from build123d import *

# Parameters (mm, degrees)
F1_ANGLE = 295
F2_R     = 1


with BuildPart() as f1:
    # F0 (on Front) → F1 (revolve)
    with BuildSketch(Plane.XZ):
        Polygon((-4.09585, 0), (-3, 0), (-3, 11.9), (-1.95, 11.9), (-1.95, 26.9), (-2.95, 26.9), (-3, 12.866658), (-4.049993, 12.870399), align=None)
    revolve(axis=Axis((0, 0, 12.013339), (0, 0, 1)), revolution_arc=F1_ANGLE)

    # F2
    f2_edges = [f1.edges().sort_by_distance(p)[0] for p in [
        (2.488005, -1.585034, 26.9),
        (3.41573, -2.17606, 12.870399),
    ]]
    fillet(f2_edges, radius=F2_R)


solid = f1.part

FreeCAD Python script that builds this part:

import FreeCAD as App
import Part
import Sketcher


def edges_at(feature, points):
    """Names of the edges that pass closest to the given points."""
    edges = feature.Shape.Edges
    near = lambda p: min(range(len(edges)), key=lambda i: edges[i].distToShape(Part.Vertex(*p))[0])
    return sorted({f"Edge{near(p) + 1}" for p in points})

doc = App.newDocument("Part")
body = doc.addObject("PartDesign::Body", "Body")

# Sketch on XZ plane
sketch1 = doc.addObject("Sketcher::SketchObject", "Sketch")
body.addObject(sketch1)
sketch1.AttachmentSupport = (doc.XZ_Plane, [""])
sketch1.MapMode = "FlatFace"
sketch1.addGeometry(Part.LineSegment(App.Vector(-4.09585, 0, 0), App.Vector(-3, 0, 0)), False)
sketch1.addGeometry(Part.LineSegment(App.Vector(-3, 0, 0), App.Vector(-3, 11.9, 0)), False)
sketch1.addGeometry(Part.LineSegment(App.Vector(-3, 11.9, 0), App.Vector(-1.95, 11.9, 0)), False)
sketch1.addGeometry(Part.LineSegment(App.Vector(-1.95, 11.9, 0), App.Vector(-1.95, 26.9, 0)), False)
sketch1.addGeometry(Part.LineSegment(App.Vector(-1.95, 26.9, 0), App.Vector(-2.95, 26.9, 0)), False)
sketch1.addGeometry(Part.LineSegment(App.Vector(-2.95, 26.9, 0), App.Vector(-3, 12.866658, 0)), False)
sketch1.addGeometry(Part.LineSegment(App.Vector(-3, 12.866658, 0), App.Vector(-4.049993, 12.870399, 0)), False)
sketch1.addGeometry(Part.LineSegment(App.Vector(-4.049993, 12.870399, 0), App.Vector(-4.09585, 0, 0)), False)
sketch1.addConstraint(Sketcher.Constraint("Coincident", 0, 2, 1, 1))
sketch1.addConstraint(Sketcher.Constraint("Coincident", 1, 2, 2, 1))
sketch1.addConstraint(Sketcher.Constraint("Coincident", 2, 2, 3, 1))
sketch1.addConstraint(Sketcher.Constraint("Coincident", 3, 2, 4, 1))
sketch1.addConstraint(Sketcher.Constraint("Coincident", 4, 2, 5, 1))
sketch1.addConstraint(Sketcher.Constraint("Coincident", 5, 2, 6, 1))
sketch1.addConstraint(Sketcher.Constraint("Coincident", 6, 2, 7, 1))
sketch1.addConstraint(Sketcher.Constraint("Coincident", 7, 2, 0, 1))
sketch1.addConstraint(Sketcher.Constraint("Horizontal", 0))
sketch1.addConstraint(Sketcher.Constraint("Vertical", 1))
sketch1.addConstraint(Sketcher.Constraint("Horizontal", 2))
sketch1.addConstraint(Sketcher.Constraint("Vertical", 3))
sketch1.addConstraint(Sketcher.Constraint("Horizontal", 4))
sketch1.addConstraint(Sketcher.Constraint("PointOnObject", 0, 2, -1))
sketch1.addConstraint(Sketcher.Constraint("Perpendicular", 5, 6))
sketch1.addConstraint(Sketcher.Constraint("Perpendicular", 6, 7))
sketch1.addConstraint(Sketcher.Constraint("Vertical", 1, 2, 5, 2))
sketch1.addConstraint(Sketcher.Constraint("DistanceX", 4, 2, 4, 1, 1.0))
sketch1.addConstraint(Sketcher.Constraint("DistanceY", 3, 1, 3, 2, 15.0))
sketch1.addConstraint(Sketcher.Constraint("DistanceY", 1, 1, 1, 2, 11.9))
sketch1.addConstraint(Sketcher.Constraint("DistanceX", 0, 2, -1, 1, 3.0))
sketch1.addConstraint(Sketcher.Constraint("DistanceX", 2, 1, 2, 2, 1.05))
sketch1.addConstraint(Sketcher.Constraint("Distance", 6, 1.05))
sketch1.addConstraint(Sketcher.Constraint("DistanceX", 0, 1, 0, 2, 1.09585))
revolution = doc.addObject("PartDesign::Revolution", "Revolution")
body.addObject(revolution)
revolution.Profile = sketch1
revolution.ReferenceAxis = (sketch1, ["V_Axis"])
revolution.Angle = 295
doc.recompute()

fillet = doc.addObject("PartDesign::Fillet", "Fillet")
body.addObject(fillet)
fillet.Base = (revolution, edges_at(revolution, [(2.488, -1.585, 26.9), (3.416, -2.176, 12.87)]))
fillet.Radius = 1

doc.recompute()
